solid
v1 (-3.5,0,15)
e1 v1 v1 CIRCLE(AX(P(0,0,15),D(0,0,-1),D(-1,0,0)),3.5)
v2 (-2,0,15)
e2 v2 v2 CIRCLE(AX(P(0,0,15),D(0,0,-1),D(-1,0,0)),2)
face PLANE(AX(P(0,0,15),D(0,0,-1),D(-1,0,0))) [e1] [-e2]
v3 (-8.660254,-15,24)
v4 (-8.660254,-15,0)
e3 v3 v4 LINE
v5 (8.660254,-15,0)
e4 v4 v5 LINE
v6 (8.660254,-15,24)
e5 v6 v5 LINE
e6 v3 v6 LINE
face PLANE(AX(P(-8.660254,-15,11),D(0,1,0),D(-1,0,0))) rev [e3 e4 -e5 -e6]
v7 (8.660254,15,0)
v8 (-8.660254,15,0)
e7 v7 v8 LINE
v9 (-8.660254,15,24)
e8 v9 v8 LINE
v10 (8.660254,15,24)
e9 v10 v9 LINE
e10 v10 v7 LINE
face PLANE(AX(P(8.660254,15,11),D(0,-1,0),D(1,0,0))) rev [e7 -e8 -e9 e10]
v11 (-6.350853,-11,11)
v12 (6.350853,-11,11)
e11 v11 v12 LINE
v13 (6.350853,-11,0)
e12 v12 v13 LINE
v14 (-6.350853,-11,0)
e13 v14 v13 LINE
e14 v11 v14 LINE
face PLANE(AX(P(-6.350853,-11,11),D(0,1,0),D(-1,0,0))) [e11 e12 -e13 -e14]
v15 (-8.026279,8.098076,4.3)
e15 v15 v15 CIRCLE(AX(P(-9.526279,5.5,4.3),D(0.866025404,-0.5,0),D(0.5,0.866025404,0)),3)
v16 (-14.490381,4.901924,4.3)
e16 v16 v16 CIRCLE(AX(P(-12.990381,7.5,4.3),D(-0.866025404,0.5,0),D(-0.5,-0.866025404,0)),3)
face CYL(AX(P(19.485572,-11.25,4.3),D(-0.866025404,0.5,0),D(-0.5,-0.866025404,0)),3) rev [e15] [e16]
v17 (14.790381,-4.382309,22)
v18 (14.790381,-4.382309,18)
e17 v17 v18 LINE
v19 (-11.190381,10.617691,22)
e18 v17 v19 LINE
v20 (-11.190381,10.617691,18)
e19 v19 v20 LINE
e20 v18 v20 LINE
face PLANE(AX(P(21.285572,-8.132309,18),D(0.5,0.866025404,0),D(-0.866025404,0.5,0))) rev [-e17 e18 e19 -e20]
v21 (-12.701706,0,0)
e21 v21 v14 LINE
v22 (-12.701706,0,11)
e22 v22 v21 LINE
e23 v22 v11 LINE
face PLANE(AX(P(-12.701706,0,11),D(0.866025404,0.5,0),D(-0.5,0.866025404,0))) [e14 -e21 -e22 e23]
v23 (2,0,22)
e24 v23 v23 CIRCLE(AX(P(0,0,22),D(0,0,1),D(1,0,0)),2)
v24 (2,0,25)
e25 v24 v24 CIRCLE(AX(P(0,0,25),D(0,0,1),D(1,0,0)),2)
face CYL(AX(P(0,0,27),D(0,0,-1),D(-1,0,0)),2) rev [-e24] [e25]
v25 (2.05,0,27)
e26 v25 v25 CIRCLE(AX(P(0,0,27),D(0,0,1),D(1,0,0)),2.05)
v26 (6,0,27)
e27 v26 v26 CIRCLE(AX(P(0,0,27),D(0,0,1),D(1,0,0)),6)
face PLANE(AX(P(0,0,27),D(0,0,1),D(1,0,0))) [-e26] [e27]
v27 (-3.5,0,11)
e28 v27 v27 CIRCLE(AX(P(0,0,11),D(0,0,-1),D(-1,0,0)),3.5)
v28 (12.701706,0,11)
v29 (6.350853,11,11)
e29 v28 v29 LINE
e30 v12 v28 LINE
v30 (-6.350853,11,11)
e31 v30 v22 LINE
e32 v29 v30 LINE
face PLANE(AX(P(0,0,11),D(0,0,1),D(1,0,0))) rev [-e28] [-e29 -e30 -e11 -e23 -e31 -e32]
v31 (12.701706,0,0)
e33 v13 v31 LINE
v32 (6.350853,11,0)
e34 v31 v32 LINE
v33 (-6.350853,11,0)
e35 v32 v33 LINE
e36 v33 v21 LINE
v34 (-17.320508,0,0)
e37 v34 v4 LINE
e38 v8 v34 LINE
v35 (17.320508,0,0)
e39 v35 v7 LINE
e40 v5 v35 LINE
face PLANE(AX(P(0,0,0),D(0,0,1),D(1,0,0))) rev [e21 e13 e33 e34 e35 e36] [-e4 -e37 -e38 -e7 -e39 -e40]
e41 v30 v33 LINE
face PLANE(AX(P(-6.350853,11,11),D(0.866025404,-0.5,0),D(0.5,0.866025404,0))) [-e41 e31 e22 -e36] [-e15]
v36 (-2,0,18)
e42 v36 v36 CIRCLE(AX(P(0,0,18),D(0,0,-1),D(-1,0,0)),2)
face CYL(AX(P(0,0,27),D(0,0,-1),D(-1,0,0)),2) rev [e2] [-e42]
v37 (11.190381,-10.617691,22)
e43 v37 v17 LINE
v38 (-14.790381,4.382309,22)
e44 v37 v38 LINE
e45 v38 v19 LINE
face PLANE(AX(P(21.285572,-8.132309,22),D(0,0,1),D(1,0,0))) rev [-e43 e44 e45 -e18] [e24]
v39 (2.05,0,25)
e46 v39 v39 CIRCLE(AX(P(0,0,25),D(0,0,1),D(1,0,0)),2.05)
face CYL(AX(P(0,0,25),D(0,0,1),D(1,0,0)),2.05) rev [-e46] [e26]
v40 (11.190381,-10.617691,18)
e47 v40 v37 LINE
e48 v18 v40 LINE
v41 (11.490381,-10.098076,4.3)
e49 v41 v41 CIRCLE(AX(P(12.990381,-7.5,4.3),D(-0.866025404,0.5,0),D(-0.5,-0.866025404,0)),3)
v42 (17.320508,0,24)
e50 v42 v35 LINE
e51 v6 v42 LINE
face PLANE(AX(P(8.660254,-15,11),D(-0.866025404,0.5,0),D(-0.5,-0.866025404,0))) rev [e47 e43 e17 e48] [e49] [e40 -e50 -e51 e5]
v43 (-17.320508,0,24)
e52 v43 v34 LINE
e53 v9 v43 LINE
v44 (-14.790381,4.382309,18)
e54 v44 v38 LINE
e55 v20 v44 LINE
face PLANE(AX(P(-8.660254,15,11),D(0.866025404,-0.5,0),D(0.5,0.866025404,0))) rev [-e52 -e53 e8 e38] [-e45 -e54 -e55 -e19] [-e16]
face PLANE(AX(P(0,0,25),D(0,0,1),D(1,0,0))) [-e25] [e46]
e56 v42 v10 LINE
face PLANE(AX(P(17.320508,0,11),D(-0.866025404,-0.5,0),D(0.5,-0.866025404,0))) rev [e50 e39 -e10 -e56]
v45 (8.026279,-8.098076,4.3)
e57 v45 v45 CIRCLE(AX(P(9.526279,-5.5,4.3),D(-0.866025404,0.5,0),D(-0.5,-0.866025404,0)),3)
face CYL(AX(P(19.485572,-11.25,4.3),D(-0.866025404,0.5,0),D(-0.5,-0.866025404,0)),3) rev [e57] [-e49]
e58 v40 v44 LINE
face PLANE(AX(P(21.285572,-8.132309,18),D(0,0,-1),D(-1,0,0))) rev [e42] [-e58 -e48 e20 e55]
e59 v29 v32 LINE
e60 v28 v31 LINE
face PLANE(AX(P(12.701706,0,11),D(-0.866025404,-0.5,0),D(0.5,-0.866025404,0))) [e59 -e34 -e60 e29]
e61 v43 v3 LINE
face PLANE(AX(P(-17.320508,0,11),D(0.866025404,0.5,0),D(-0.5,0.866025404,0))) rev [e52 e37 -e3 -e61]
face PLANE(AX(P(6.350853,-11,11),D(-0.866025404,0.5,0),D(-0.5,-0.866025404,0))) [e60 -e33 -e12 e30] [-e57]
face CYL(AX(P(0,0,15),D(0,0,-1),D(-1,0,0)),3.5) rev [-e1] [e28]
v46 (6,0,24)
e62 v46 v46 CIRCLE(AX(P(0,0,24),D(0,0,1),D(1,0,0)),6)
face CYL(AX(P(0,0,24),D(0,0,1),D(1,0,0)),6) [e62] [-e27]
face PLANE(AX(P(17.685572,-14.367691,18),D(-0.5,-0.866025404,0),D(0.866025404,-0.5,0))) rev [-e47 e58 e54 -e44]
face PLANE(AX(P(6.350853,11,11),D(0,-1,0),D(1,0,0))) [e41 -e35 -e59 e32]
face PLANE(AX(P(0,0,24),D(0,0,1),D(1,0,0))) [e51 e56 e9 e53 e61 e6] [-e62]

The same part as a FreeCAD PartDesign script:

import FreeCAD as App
import Part
import Sketcher
from FreeCAD import Vector
Q = App.Units.Quantity


def add_polygon(sketch, points):
    """Adds a closed chain of lines whose ends are joined by coincident constraints."""
    first, n = sketch.GeometryCount, len(points)
    for a, b in zip(points, points[1:] + points[:1]):
        sketch.addGeometry(Part.LineSegment(App.Vector(*a, 0), App.Vector(*b, 0)), False)
    for i in range(n):
        sketch.addConstraint(Sketcher.Constraint("Coincident", first + i, 2, first + (i + 1) % n, 1))

doc = App.newDocument("Part")
params = doc.addObject("Spreadsheet::Sheet", "Params")
for row, (alias, value) in enumerate([
    ("pad1_length", "11 mm"),
    ("sketch2_diameter", "4 mm"),
    ("pad2_length", "16 mm"),
    ("sketch3_diameter", "4.1 mm"),
    ("pocket1_length", "2 mm"),
    ("sketch4_diameter", "7 mm"),
    ("pocket2_length", "4 mm"),
    ("sketch5_width", "4 mm"),
    ("sketch5_height", "7.2 mm"),
    ("sketch6_diameter", "6 mm"),
    ("sketch7_diameter", "12 mm"),
    ("pocket5_length", "3 mm"),
], start=1):
    params.set(f"A{row}", alias)
    params.set(f"B{row}", "=" + value)
    params.setAlias(f"B{row}", alias)

body = doc.addObject("PartDesign::Body", "Body")

# Sketch on XY plane
sketch1 = body.newObject("Sketcher::SketchObject", "Sketch")
sketch1.AttachmentSupport = (doc.getObject("XY_Plane"), [""])
sketch1.MapMode = "FlatFace"
add_polygon(sketch1, [(17, 0), (9, 15), (-9, 15), (-17, 0), (-9, -15), (9, -15)])  # lines 0-5
add_polygon(sketch1, [(6, 11), (13, 0), (6, -11), (-6, -11), (-13, 0), (-6, 11)])  # lines 6-11
sketch1.addConstraint([
    Sketcher.Constraint("Horizontal", 1),
    Sketcher.Constraint("Horizontal", 4),
    Sketcher.Constraint("Horizontal", 8),
    Sketcher.Constraint("Horizontal", 11),
    Sketcher.Constraint("Symmetric", 0, 2, 3, 2, -1, 1),
    Sketcher.Constraint("Symmetric", 2, 2, 5, 2, -1, 1),
    Sketcher.Constraint("Symmetric", 6, 2, 9, 2, -1, 1),
    Sketcher.Constraint("Symmetric", 7, 2, 10, 2, -1, 1),
    Sketcher.Constraint("PointOnObject", 2, 2, -1),
    Sketcher.Constraint("PointOnObject", 6, 2, -1),
    Sketcher.Constraint("Parallel", 2, 5),
    Sketcher.Constraint("Parallel", 3, 6),
    Sketcher.Constraint("Parallel", 5, 7),
    Sketcher.Constraint("Parallel", 6, 9),
    Sketcher.Constraint("Vertical", 1, 2, 3, 2),
    Sketcher.Constraint("Angle", 0, Q("120 deg")),
    Sketcher.Constraint("DistanceY", -1, 1, 0, 2, 15.0),
    Sketcher.Constraint("DistanceY", 7, 2, -1, 1, 11.0),
    Sketcher.Constraint("DistanceX", 1, 2, 1, 1, 17.320508),
    Sketcher.Constraint("DistanceX", 7, 2, 4, 2, 2.309401),
])
pad1 = body.newObject("PartDesign::Pad", "Pad")
pad1.Profile = sketch1
pad1.setExpression("Length", "Params.pad1_length")

# Sketch on XY plane
sketch2 = body.newObject("Sketcher::SketchObject", "Sketch001")
sketch2.AttachmentSupport = (doc.getObject("XY_Plane"), [""])
sketch2.MapMode = "FlatFace"
sketch2.AttachmentOffset = App.Placement(Vector(0, 0, 11), App.Rotation())
add_polygon(sketch2, [(-8.7, 15), (-17.3, 0), (-8.7, -15), (8.7, -15), (17.3, 0), (8.7, 15)])  # lines 0-5
sketch2.addGeometry(Part.Circle(Vector(0, 0, 0), Vector(0, 0, 1), 2), False)  # 6
sketch2.addConstraint([
    Sketcher.Constraint("Horizontal", 2),
    Sketcher.Constraint("Horizontal", 5),
    Sketcher.Constraint("Coincident", 6, 3, -1, 1),
    Sketcher.Constraint("Symmetric", 0, 2, 3, 2, -1, 1),
    Sketcher.Constraint("Symmetric", 1, 2, 4, 2, -1, 1),
    Sketcher.Constraint("PointOnObject", 0, 2, -1),
    Sketcher.Constraint("Parallel", 0, 3),
    Sketcher.Constraint("Vertical", 2, 2, 4, 2),
    Sketcher.Constraint("Diameter", 6, 4.0),
    Sketcher.Constraint("Angle", 0, Q("-120 deg")),
    Sketcher.Constraint("DistanceY", 1, 2, -1, 1, 15.0),
    Sketcher.Constraint("DistanceX", 2, 1, 2, 2, 17.320508),
])
sketch2.setExpression("Constraints[14]", "Params.sketch2_diameter")
pad2 = body.newObject("PartDesign::Pad", "Pad001")
pad2.Profile = sketch2
pad2.setExpression("Length", "Params.pad2_length")

# Sketch on XY plane
sketch3 = body.newObject("Sketcher::SketchObject", "Sketch002")
sketch3.AttachmentSupport = (doc.getObject("XY_Plane"), [""])
sketch3.MapMode = "FlatFace"
sketch3.AttachmentOffset = App.Placement(Vector(0, 0, 27), App.Rotation())
sketch3.addGeometry(Part.Circle(Vector(0, 0, 0), Vector(0, 0, 1), 2), False)
sketch3.addConstraint([
    Sketcher.Constraint("Coincident", 0, 3, -1, 1),
    Sketcher.Constraint("Diameter", 0, 4.1),
])
sketch3.setExpression("Constraints[1]", "Params.sketch3_diameter")
pocket1 = body.newObject("PartDesign::Pocket", "Pocket")
pocket1.Profile = sketch3
pocket1.setExpression("Length", "Params.pocket1_length")

# Sketch on XY plane
sketch4 = body.newObject("Sketcher::SketchObject", "Sketch003")
sketch4.AttachmentSupport = (doc.getObject("XY_Plane"), [""])
sketch4.MapMode = "FlatFace"
sketch4.AttachmentOffset = App.Placement(Vector(0, 0, 11), App.Rotation())
sketch4.addGeometry(Part.Circle(Vector(0, 0, 0), Vector(0, 0, 1), 3.5), False)
sketch4.addConstraint([
    Sketcher.Constraint("Coincident", 0, 3, -1, 1),
    Sketcher.Constraint("Diameter", 0, 7.0),
])
sketch4.setExpression("Constraints[1]", "Params.sketch4_diameter")
pocket2 = body.newObject("PartDesign::Pocket", "Pocket001")
pocket2.Profile = sketch4
pocket2.setExpression("Length", "Params.pocket2_length")
pocket2.Reversed = True

# Sketch on an angled plane
sketch5 = body.newObject("Sketcher::SketchObject", "Sketch004")
sketch5.Placement = App.Placement(Vector(-12.990381, 7.5, 0), App.Rotation(Vector(0, 0, 1), Vector(0.5, 0.866025404, 0), Vector(-0.866025404, 0.5, 0), "ZXY"))
add_polygon(sketch5, [(18, 3.6), (18, -3.6), (22, -3.6), (22, 3.6)])  # lines 0-3
sketch5.addConstraint([
    Sketcher.Constraint("Vertical", 0),
    Sketcher.Constraint("Horizontal", 1),
    Sketcher.Constraint("Vertical", 2),
    Sketcher.Constraint("Horizontal", 3),
    Sketcher.Constraint("DistanceX", 1, 1, 1, 2, 4.0),
    Sketcher.Constraint("DistanceY", 0, 2, 0, 1, 7.2),
    Sketcher.Constraint("DistanceX", -1, 1, 0, 2, 18.0),
    Sketcher.Constraint("DistanceY", 0, 2, -1, 1, 3.6),
])
sketch5.setExpression("Constraints[8]", "Params.sketch5_width")
sketch5.setExpression("Constraints[9]", "Params.sketch5_height")
pocket3 = body.newObject("PartDesign::Pocket", "Pocket002")
pocket3.Profile = sketch5
pocket3.Type = "ThroughAll"

# Sketch on an angled plane
sketch6 = body.newObject("Sketcher::SketchObject", "Sketch005")
sketch6.Placement = App.Placement(Vector(-12.990381, 7.5, 0), App.Rotation(Vector(0, 0, 1), Vector(0.5, 0.866025404, 0), Vector(-0.866025404, 0.5, 0), "ZXY"))
sketch6.addGeometry(Part.Circle(Vector(4.3, 0, 0), Vector(0, 0, 1), 3), False)
sketch6.addConstraint([
    Sketcher.Constraint("PointOnObject", 0, 3, -1),
    Sketcher.Constraint("Diameter", 0, 6.0),
    Sketcher.Constraint("DistanceX", -1, 1, 0, 3, 4.3),
])
sketch6.setExpression("Constraints[1]", "Params.sketch6_diameter")
pocket4 = body.newObject("PartDesign::Pocket", "Pocket003")
pocket4.Profile = sketch6
pocket4.Type = "ThroughAll"

# Sketch on XY plane
sketch7 = body.newObject("Sketcher::SketchObject", "Sketch006")
sketch7.AttachmentSupport = (doc.getObject("XY_Plane"), [""])
sketch7.MapMode = "FlatFace"
sketch7.AttachmentOffset = App.Placement(Vector(0, 0, 27), App.Rotation())
add_polygon(sketch7, [(-9, 15), (-17, 0), (-9, -15), (9, -15), (17, 0), (9, 15)])  # lines 0-5
sketch7.addGeometry(Part.Circle(Vector(0, 0, 0), Vector(0, 0, 1), 6), False)  # 6
sketch7.addConstraint([
    Sketcher.Constraint("Horizontal", 2),
    Sketcher.Constraint("Horizontal", 5),
    Sketcher.Constraint("Coincident", 6, 3, -1, 1),
    Sketcher.Constraint("Symmetric", 0, 2, 3, 2, -1, 1),
    Sketcher.Constraint("Symmetric", 1, 2, 4, 2, -1, 1),
    Sketcher.Constraint("PointOnObject", 0, 2, -1),
    Sketcher.Constraint("Parallel", 0, 3),
    Sketcher.Constraint("Vertical", 2, 2, 4, 2),
    Sketcher.Constraint("Diameter", 6, 12.0),
    Sketcher.Constraint("Angle", 0, Q("-120 deg")),
    Sketcher.Constraint("DistanceY", 1, 2, -1, 1, 15.0),
    Sketcher.Constraint("DistanceX", 2, 1, 2, 2, 17.320508),
])
sketch7.setExpression("Constraints[14]", "Params.sketch7_diameter")
pocket5 = body.newObject("PartDesign::Pocket", "Pocket004")
pocket5.Profile = sketch7
pocket5.setExpression("Length", "Params.pocket5_length")

doc.recompute()
